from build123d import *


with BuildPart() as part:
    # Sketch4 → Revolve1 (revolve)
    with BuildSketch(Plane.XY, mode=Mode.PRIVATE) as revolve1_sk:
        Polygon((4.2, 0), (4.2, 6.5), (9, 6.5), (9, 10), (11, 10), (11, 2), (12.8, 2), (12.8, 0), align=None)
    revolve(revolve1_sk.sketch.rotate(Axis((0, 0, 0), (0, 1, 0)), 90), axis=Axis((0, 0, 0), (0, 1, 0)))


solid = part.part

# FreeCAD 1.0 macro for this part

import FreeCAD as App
import Part
import Sketcher

V = App.Vector
Q = App.Units.Quantity

doc = App.newDocument("Part")
body = doc.addObject("PartDesign::Body", "Body")

# Sketch on XY plane
sketch1 = body.newObject("Sketcher::SketchObject", "Sketch")
sketch1.AttachmentSupport = (doc.getObject("XY_Plane"), [""])
sketch1.MapMode = "FlatFace"
sketch1.addGeometry(Part.LineSegment(V(4.2, 6.5, 0), V(4.2, 0, 0)), False)
sketch1.addGeometry(Part.LineSegment(V(4.2, 0, 0), V(12.8, 0, 0)), False)
sketch1.addGeometry(Part.LineSegment(V(12.8, 0, 0), V(12.8, 2, 0)), False)
sketch1.addGeometry(Part.LineSegment(V(12.8, 2, 0), V(11, 2, 0)), False)
sketch1.addGeometry(Part.LineSegment(V(11, 2, 0), V(11, 10, 0)), False)
sketch1.addGeometry(Part.LineSegment(V(11, 10, 0), V(9, 10, 0)), False)
sketch1.addGeometry(Part.LineSegment(V(9, 10, 0), V(9, 6.5, 0)), False)
sketch1.addGeometry(Part.LineSegment(V(9, 6.5, 0), V(4.2, 6.5, 0)), False)
sketch1.addConstraint(Sketcher.Constraint("Coincident", 0, 2, 1, 1))
sketch1.addConstraint(Sketcher.Constraint("Coincident", 1, 2, 2, 1))
sketch1.addConstraint(Sketcher.Constraint("Coincident", 2, 2, 3, 1))
sketch1.addConstraint(Sketcher.Constraint("Coincident", 3, 2, 4, 1))
sketch1.addConstraint(Sketcher.Constraint("Coincident", 4, 2, 5, 1))
sketch1.addConstraint(Sketcher.Constraint("Coincident", 5, 2, 6, 1))
sketch1.addConstraint(Sketcher.Constraint("Coincident", 6, 2, 7, 1))
sketch1.addConstraint(Sketcher.Constraint("Coincident", 7, 2, 0, 1))
sketch1.addConstraint(Sketcher.Constraint("Vertical", 0))
sketch1.addConstraint(Sketcher.Constraint("Horizontal", 1))
sketch1.addConstraint(Sketcher.Constraint("Vertical", 2))
sketch1.addConstraint(Sketcher.Constraint("Horizontal", 3))
sketch1.addConstraint(Sketcher.Constraint("Vertical", 4))
sketch1.addConstraint(Sketcher.Constraint("Horizontal", 5))
sketch1.addConstraint(Sketcher.Constraint("Vertical", 6))
sketch1.addConstraint(Sketcher.Constraint("Horizontal", 7))
sketch1.addConstraint(Sketcher.Constraint("PointOnObject", 0, 2, -1))
sketch1.addConstraint(Sketcher.Constraint("Equal", 5, 2))
sketch1.addConstraint(Sketcher.Constraint("DistanceX", 5, 2, 5, 1, Q("2 mm")))
sketch1.addConstraint(Sketcher.Constraint("DistanceY", 4, 1, 4, 2, Q("8 mm")))
sketch1.addConstraint(Sketcher.Constraint("DistanceX", 1, 1, 1, 2, Q("8.6 mm")))
sketch1.addConstraint(Sketcher.Constraint("DistanceX", 3, 2, 3, 1, Q("1.8 mm")))
sketch1.addConstraint(Sketcher.Constraint("DistanceY", 0, 2, 0, 1, Q("6.5 mm")))
sketch1.addConstraint(Sketcher.Constraint("DistanceX", -1, 1, 3, 2, Q("11 mm")))
revolution = body.newObject("PartDesign::Revolution", "Revolution")
revolution.Profile = sketch1
revolution.ReferenceAxis = (sketch1, ["V_Axis"])
revolution.Angle = 360

doc.recompute()
